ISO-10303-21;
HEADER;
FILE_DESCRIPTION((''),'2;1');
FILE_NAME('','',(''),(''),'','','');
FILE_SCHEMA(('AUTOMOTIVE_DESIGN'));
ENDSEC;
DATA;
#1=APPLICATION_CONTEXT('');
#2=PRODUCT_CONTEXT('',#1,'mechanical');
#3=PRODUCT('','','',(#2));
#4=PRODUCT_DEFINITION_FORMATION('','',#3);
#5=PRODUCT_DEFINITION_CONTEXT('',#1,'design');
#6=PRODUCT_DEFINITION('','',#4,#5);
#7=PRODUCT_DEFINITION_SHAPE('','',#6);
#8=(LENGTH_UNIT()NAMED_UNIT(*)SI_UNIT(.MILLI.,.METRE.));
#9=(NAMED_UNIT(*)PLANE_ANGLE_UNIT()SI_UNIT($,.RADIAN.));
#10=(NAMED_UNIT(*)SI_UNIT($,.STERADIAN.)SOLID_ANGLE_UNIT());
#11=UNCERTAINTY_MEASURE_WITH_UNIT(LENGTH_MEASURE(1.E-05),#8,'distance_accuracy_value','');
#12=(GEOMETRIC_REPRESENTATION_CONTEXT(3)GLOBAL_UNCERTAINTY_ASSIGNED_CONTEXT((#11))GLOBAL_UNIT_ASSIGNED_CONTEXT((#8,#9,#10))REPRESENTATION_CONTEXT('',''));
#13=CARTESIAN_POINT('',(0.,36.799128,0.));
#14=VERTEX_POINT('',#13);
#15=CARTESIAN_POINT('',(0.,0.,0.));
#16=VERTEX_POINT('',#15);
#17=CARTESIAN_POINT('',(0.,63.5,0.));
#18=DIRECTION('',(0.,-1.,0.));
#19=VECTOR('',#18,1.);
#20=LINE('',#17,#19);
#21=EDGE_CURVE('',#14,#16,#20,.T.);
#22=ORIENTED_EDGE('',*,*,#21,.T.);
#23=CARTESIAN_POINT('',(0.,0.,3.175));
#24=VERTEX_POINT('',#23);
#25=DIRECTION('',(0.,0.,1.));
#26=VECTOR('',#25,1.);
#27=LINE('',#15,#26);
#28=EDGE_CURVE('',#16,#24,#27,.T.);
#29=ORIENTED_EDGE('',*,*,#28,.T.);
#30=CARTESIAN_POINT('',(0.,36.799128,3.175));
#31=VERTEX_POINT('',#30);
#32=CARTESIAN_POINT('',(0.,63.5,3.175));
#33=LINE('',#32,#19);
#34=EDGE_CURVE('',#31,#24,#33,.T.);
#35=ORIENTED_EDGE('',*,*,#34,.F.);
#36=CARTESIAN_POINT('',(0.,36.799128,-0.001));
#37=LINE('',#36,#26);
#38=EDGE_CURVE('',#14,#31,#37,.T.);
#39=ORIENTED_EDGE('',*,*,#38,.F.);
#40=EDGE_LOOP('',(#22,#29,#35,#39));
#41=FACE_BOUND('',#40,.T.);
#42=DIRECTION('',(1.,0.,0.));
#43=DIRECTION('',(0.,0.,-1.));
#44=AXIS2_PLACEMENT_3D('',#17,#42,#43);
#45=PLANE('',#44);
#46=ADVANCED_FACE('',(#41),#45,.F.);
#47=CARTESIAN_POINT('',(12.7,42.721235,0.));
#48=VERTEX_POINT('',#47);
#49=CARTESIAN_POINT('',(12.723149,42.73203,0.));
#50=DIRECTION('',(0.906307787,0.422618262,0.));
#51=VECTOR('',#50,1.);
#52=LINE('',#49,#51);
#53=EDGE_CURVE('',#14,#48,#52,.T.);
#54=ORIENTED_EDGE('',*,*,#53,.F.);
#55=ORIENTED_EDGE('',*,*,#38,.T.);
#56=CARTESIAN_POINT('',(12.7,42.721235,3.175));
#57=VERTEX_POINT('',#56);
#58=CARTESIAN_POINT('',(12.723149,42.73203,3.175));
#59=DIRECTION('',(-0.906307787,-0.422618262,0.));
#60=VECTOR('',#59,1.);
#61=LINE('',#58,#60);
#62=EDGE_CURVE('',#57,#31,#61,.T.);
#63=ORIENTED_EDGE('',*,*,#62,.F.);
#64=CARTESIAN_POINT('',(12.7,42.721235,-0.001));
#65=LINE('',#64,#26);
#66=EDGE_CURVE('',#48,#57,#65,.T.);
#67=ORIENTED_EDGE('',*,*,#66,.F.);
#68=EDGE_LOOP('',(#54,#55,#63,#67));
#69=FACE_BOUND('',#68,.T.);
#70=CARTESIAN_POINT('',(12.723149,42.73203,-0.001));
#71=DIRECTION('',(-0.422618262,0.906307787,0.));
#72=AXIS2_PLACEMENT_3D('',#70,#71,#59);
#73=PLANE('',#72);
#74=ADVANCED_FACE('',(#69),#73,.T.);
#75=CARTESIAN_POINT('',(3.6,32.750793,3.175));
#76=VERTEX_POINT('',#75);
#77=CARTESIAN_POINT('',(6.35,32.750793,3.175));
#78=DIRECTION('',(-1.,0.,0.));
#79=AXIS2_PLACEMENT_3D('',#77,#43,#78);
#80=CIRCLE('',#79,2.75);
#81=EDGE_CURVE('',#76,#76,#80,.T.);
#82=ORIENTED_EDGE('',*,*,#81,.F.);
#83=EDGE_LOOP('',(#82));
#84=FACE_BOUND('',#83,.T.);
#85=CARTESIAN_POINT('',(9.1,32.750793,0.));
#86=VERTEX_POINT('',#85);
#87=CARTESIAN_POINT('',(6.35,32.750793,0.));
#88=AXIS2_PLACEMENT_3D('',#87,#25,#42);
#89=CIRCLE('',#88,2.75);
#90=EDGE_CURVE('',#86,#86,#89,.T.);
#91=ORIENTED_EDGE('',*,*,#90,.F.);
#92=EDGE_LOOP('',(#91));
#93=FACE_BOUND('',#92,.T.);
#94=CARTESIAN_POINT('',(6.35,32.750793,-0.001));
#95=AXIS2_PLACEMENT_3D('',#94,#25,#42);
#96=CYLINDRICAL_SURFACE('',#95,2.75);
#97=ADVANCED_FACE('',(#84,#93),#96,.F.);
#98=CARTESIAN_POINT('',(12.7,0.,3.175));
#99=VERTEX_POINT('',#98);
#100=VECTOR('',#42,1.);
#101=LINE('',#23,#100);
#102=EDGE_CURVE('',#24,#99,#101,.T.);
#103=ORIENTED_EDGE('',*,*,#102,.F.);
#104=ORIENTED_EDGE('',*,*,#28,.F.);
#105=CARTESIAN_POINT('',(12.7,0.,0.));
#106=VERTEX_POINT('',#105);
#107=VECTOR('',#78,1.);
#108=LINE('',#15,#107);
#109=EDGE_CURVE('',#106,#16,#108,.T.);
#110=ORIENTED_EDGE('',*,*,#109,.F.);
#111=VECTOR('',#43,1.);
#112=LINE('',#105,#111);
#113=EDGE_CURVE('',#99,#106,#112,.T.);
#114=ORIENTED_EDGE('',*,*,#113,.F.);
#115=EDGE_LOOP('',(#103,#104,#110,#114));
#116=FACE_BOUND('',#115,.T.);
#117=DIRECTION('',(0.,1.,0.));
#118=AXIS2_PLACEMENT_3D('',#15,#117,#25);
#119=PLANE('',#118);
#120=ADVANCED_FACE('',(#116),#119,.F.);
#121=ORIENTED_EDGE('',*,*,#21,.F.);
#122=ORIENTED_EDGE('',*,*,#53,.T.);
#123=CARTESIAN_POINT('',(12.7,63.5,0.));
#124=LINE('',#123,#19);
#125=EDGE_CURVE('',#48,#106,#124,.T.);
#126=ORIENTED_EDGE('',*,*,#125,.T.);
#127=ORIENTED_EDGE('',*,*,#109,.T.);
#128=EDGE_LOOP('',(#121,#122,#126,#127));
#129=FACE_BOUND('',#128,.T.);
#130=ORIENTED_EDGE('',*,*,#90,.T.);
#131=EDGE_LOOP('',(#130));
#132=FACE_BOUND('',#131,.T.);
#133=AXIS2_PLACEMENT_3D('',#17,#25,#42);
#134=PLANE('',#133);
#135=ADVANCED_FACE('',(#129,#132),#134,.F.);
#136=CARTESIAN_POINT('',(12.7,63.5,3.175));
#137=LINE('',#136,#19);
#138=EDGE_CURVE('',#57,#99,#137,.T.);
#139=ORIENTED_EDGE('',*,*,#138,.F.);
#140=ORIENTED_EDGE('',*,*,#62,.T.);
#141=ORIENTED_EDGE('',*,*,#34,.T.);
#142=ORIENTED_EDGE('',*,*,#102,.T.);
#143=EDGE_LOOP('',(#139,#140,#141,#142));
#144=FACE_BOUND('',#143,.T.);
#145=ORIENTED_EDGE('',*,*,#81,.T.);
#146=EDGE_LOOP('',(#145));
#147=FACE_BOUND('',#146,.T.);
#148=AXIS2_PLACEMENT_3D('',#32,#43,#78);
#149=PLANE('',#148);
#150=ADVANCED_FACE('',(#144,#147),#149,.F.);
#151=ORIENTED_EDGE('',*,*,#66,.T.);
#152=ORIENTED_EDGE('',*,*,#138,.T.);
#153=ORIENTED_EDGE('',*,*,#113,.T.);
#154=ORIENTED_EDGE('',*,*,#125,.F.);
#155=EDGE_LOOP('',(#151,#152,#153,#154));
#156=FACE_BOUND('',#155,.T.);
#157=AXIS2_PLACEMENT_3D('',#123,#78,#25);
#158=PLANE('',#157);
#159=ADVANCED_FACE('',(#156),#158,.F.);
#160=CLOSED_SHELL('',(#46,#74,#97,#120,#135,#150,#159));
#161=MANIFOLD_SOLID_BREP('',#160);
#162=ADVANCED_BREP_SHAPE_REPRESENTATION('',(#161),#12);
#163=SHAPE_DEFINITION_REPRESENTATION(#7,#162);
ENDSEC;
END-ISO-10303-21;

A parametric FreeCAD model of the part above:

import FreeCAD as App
import Part
import Sketcher
from FreeCAD import Vector
Q = App.Units.Quantity


def add_polygon(sketch, points):
    """Adds a closed chain of lines whose ends are joined by coincident constraints."""
    first, n = sketch.GeometryCount, len(points)
    for a, b in zip(points, points[1:] + points[:1]):
        sketch.addGeometry(Part.LineSegment(App.Vector(*a, 0), App.Vector(*b, 0)), False)
    for i in range(n):
        sketch.addConstraint(Sketcher.Constraint("Coincident", first + i, 2, first + (i + 1) % n, 1))

doc = App.newDocument("Part")
body = doc.addObject("PartDesign::Body", "Body")

# Sketch on XZ plane
sketch1 = body.newObject("Sketcher::SketchObject", "Sketch")
sketch1.AttachmentSupport = (doc.getObject("XZ_Plane"), [""])
sketch1.MapMode = "FlatFace"
add_polygon(sketch1, [(0, 0), (0, 3.2), (12.7, 3.2), (12.7, 0)])  # lines 0-3
sketch1.addConstraint(Sketcher.Constraint("Vertical", 0))
sketch1.addConstraint(Sketcher.Constraint("Horizontal", 1))
sketch1.addConstraint(Sketcher.Constraint("Vertical", 2))
sketch1.addConstraint(Sketcher.Constraint("Horizontal", 3))
sketch1.addConstraint(Sketcher.Constraint("Coincident", 3, 2, -1, 1))
sketch1.addConstraint(Sketcher.Constraint("DistanceX", 1, 1, 1, 2, Q("0.5 in")))
sketch1.addConstraint(Sketcher.Constraint("DistanceY", 0, 1, 0, 2, Q("0.125 in")))
pad1 = body.newObject("PartDesign::Pad", "Pad")
pad1.Profile = sketch1
pad1.Length = Q("2.5 in")
pad1.Reversed = True

# Sketch on XY plane
sketch2 = body.newObject("Sketcher::SketchObject", "Sketch001")
sketch2.AttachmentSupport = (doc.getObject("XY_Plane"), [""])
sketch2.MapMode = "FlatFace"
sketch2.AttachmentOffset = App.Placement(Vector(0, 0, 0.125 * 25.4), App.Rotation())
sketch2.addGeometry(Part.Circle(Vector(6.3, 32.8, 0), Vector(0, 0, 1), 2.8), False)
sketch2.addConstraint(Sketcher.Constraint("Diameter", 0, 5.5))
sketch2.addConstraint(Sketcher.Constraint("DistanceX", -1, 1, 0, 3, Q("0.25 in")))
sketch2.addConstraint(Sketcher.Constraint("DistanceY", -1, 1, 0, 3, 32.750793))
pocket1 = body.newObject("PartDesign::Pocket", "Pocket")
pocket1.Profile = sketch2
pocket1.Type = "UpToFirst"

# Sketch on XY plane
sketch3 = body.newObject("Sketcher::SketchObject", "Sketch002")
sketch3.AttachmentSupport = (doc.getObject("XY_Plane"), [""])
sketch3.MapMode = "FlatFace"
sketch3.AttachmentOffset = App.Placement(Vector(0, 0, 0.125 * 25.4), App.Rotation())
add_polygon(sketch3, [(13, 43), (0, 37), (0, 64), (13, 64)])  # lines 0-3
sketch3.addConstraint(Sketcher.Constraint("Vertical", 1))
sketch3.addConstraint(Sketcher.Constraint("Horizontal", 2))
sketch3.addConstraint(Sketcher.Constraint("PointOnObject", 0, 2, -2))
sketch3.addConstraint(Sketcher.Constraint("DistanceX", 2, 1, 2, 2, Q("0.5 in")))
sketch3.addConstraint(Sketcher.Constraint("Angle", 0, Q("-155 deg")))
sketch3.addConstraint(Sketcher.Constraint("DistanceY", -1, 1, 1, 2, Q("2.5 in")))
sketch3.addConstraint(Sketcher.Constraint("DistanceY", 0, 2, 3, 2, 5.932902))
sketch3.addConstraint(Sketcher.Constraint("DistanceY", 1, 1, 1, 2, 26.700872))
pocket2 = body.newObject("PartDesign::Pocket", "Pocket001")
pocket2.Profile = sketch3
pocket2.Type = "UpToFirst"

doc.recompute()
